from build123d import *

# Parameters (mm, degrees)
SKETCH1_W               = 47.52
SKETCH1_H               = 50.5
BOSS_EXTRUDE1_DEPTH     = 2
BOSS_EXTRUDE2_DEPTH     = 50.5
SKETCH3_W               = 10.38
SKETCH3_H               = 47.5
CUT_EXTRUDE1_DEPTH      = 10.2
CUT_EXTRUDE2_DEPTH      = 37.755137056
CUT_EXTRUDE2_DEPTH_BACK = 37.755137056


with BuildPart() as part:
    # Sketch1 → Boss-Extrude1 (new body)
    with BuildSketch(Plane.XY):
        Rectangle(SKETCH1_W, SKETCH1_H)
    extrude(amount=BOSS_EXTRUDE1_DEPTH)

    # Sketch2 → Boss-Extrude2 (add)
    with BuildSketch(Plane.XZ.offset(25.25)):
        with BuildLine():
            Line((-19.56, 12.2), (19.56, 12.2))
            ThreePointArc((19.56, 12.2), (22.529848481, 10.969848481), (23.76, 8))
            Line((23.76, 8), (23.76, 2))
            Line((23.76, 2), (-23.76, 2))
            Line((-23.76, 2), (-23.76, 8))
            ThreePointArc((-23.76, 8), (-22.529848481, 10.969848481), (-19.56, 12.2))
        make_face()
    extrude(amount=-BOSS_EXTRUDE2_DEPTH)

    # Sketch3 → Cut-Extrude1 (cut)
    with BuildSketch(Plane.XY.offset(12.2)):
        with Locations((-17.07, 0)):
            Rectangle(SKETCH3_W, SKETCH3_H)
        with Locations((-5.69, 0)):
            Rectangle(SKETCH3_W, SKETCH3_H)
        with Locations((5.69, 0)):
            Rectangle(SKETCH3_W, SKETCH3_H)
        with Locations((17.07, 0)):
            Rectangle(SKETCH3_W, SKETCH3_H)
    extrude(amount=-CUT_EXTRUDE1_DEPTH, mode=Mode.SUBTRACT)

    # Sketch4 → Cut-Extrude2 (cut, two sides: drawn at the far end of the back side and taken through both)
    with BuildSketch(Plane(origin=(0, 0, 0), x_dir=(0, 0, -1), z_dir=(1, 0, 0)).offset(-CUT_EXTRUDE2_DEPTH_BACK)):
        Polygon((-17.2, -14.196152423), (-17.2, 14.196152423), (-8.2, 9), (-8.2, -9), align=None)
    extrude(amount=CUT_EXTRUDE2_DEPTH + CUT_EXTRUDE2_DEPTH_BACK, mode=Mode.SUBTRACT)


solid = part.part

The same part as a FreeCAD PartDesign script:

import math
import FreeCAD as App
import Part
import Sketcher
from FreeCAD import Vector
Q = App.Units.Quantity


def add_polygon(sketch, points):
    """Adds a closed chain of lines whose ends are joined by coincident constraints."""
    first, n = sketch.GeometryCount, len(points)
    for a, b in zip(points, points[1:] + points[:1]):
        sketch.addGeometry(Part.LineSegment(App.Vector(*a, 0), App.Vector(*b, 0)), False)
    for i in range(n):
        sketch.addConstraint(Sketcher.Constraint("Coincident", first + i, 2, first + (i + 1) % n, 1))

doc = App.newDocument("Part")
body = doc.addObject("PartDesign::Body", "Body")

# Sketch on XY plane
sketch1 = body.newObject("Sketcher::SketchObject", "Sketch")
sketch1.AttachmentSupport = (doc.getObject("XY_Plane"), [""])
sketch1.MapMode = "FlatFace"
add_polygon(sketch1, [(-24, 25), (-24, -25), (24, -25), (24, 25)])  # lines 0-3
sketch1.addConstraint(Sketcher.Constraint("Vertical", 0))
sketch1.addConstraint(Sketcher.Constraint("Horizontal", 1))
sketch1.addConstraint(Sketcher.Constraint("Vertical", 2))
sketch1.addConstraint(Sketcher.Constraint("Horizontal", 3))
sketch1.addConstraint(Sketcher.Constraint("Symmetric", 0, 2, 2, 2, -1, 1))
sketch1.addConstraint(Sketcher.Constraint("DistanceY", 0, 2, 0, 1, 50.5))
sketch1.addConstraint(Sketcher.Constraint("DistanceX", 1, 1, 1, 2, 47.52))
pad1 = body.newObject("PartDesign::Pad", "Pad")
pad1.Profile = sketch1
pad1.Length = 2

# Sketch on XZ plane
sketch2 = body.newObject("Sketcher::SketchObject", "Sketch001")
sketch2.AttachmentSupport = (doc.getObject("XZ_Plane"), [""])
sketch2.MapMode = "FlatFace"
sketch2.AttachmentOffset = App.Placement(Vector(0, 0, 25.25), App.Rotation())
sketch2.addGeometry(Part.LineSegment(Vector(19.6, 12.2, 0), Vector(-19.6, 12.2, 0)), False)
sketch2.addGeometry(Part.ArcOfCircle(Part.Circle(Vector(-19.6, 8, 0), Vector(0, 0, 1), 4.2), math.radians(90), math.radians(180)), False)
sketch2.addGeometry(Part.LineSegment(Vector(-23.8, 8, 0), Vector(-23.8, 2, 0)), False)
sketch2.addGeometry(Part.LineSegment(Vector(-23.8, 2, 0), Vector(23.8, 2, 0)), False)
sketch2.addGeometry(Part.LineSegment(Vector(23.8, 2, 0), Vector(23.8, 8, 0)), False)
sketch2.addGeometry(Part.ArcOfCircle(Part.Circle(Vector(19.6, 8, 0), Vector(0, 0, 1), 4.2), math.radians(0), math.radians(90)), False)
sketch2.addConstraint(Sketcher.Constraint("Tangent", 0, 2, 1, 1))
sketch2.addConstraint(Sketcher.Constraint("Tangent", 1, 2, 2, 1))
sketch2.addConstraint(Sketcher.Constraint("Coincident", 2, 2, 3, 1))
sketch2.addConstraint(Sketcher.Constraint("Coincident", 3, 2, 4, 1))
sketch2.addConstraint(Sketcher.Constraint("Tangent", 4, 2, 5, 1))
sketch2.addConstraint(Sketcher.Constraint("Tangent", 5, 2, 0, 1))
sketch2.addConstraint(Sketcher.Constraint("Horizontal", 0))
sketch2.addConstraint(Sketcher.Constraint("Vertical", 2))
sketch2.addConstraint(Sketcher.Constraint("Horizontal", 3))
sketch2.addConstraint(Sketcher.Constraint("Vertical", 4))
sketch2.addConstraint(Sketcher.Constraint("Equal", 1, 5))
sketch2.addConstraint(Sketcher.Constraint("Radius", 1, 4.2))
sketch2.addConstraint(Sketcher.Constraint("DistanceY", 2, 2, 2, 1, 6.0))
sketch2.addConstraint(Sketcher.Constraint("DistanceY", -1, 1, 1, 3, 8.0))
sketch2.addConstraint(Sketcher.Constraint("DistanceX", 0, 2, 0, 1, 39.12))
sketch2.addConstraint(Sketcher.Constraint("DistanceX", 1, 3, -1, 1, 19.56))
pad2 = body.newObject("PartDesign::Pad", "Pad001")
pad2.Profile = sketch2
pad2.Length = 50.5
pad2.Reversed = True

# Sketch on XY plane
sketch3 = body.newObject("Sketcher::SketchObject", "Sketch002")
sketch3.AttachmentSupport = (doc.getObject("XY_Plane"), [""])
sketch3.MapMode = "FlatFace"
sketch3.AttachmentOffset = App.Placement(Vector(0, 0, 12.2), App.Rotation())
add_polygon(sketch3, [(-22, 24), (-22, -24), (-12, -24), (-12, 24)])  # lines 0-3
add_polygon(sketch3, [(-11, 24), (-11, -24), (0, -24), (0, 24)])  # lines 4-7
add_polygon(sketch3, [(0, 24), (0, -24), (11, -24), (11, 24)])  # lines 8-11
add_polygon(sketch3, [(12, 24), (12, -24), (22, -24), (22, 24)])  # lines 12-15
sketch3.addConstraint(Sketcher.Constraint("Vertical", 0))
sketch3.addConstraint(Sketcher.Constraint("Horizontal", 1))
sketch3.addConstraint(Sketcher.Constraint("Vertical", 2))
sketch3.addConstraint(Sketcher.Constraint("Horizontal", 3))
sketch3.addConstraint(Sketcher.Constraint("Vertical", 4))
sketch3.addConstraint(Sketcher.Constraint("Horizontal", 5))
sketch3.addConstraint(Sketcher.Constraint("Vertical", 6))
sketch3.addConstraint(Sketcher.Constraint("Horizontal", 7))
sketch3.addConstraint(Sketcher.Constraint("Vertical", 8))
sketch3.addConstraint(Sketcher.Constraint("Horizontal", 9))
sketch3.addConstraint(Sketcher.Constraint("Vertical", 10))
sketch3.addConstraint(Sketcher.Constraint("Horizontal", 11))
sketch3.addConstraint(Sketcher.Constraint("Vertical", 12))
sketch3.addConstraint(Sketcher.Constraint("Horizontal", 13))
sketch3.addConstraint(Sketcher.Constraint("Vertical", 14))
sketch3.addConstraint(Sketcher.Constraint("Horizontal", 15))
sketch3.addConstraint(Sketcher.Constraint("Symmetric", 6, 2, 8, 2, -1, 1))
sketch3.addConstraint(Sketcher.Constraint("Symmetric", 4, 2, 10, 2, -1, 1))
sketch3.addConstraint(Sketcher.Constraint("Symmetric", 2, 2, 12, 2, -1, 1))
sketch3.addConstraint(Sketcher.Constraint("Symmetric", 0, 2, 14, 2, -1, 1))
sketch3.addConstraint(Sketcher.Constraint("Horizontal", 1, 2, 4, 2))
sketch3.addConstraint(Sketcher.Constraint("Horizontal", 3, 2, 6, 2))
sketch3.addConstraint(Sketcher.Constraint("Horizontal", 5, 2, 8, 2))
sketch3.addConstraint(Sketcher.Constraint("Equal", 3, 5))
sketch3.addConstraint(Sketcher.Constraint("DistanceY", 0, 2, 0, 1, 47.5))
sketch3.addConstraint(Sketcher.Constraint("DistanceX", 1, 2, 4, 2, 1.0))
sketch3.addConstraint(Sketcher.Constraint("DistanceX", 5, 2, 8, 2, 1.0))
sketch3.addConstraint(Sketcher.Constraint("DistanceX", 1, 1, 1, 2, 10.38))
pocket1 = body.newObject("PartDesign::Pocket", "Pocket")
pocket1.Profile = sketch3
pocket1.Length = 10.2

# Sketch on YZ plane
sketch4 = body.newObject("Sketcher::SketchObject", "Sketch003")
sketch4.AttachmentSupport = (doc.getObject("YZ_Plane"), [""])
sketch4.MapMode = "FlatFace"
add_polygon(sketch4, [(14, 17), (-14, 17), (-9, 8), (9, 8)])  # lines 0-3
sketch4.addConstraint(Sketcher.Constraint("Horizontal", 0))
sketch4.addConstraint(Sketcher.Constraint("Horizontal", 2))
sketch4.addConstraint(Sketcher.Constraint("Equal", 1, 3))
sketch4.addConstraint(Sketcher.Constraint("DistanceX", 2, 1, 2, 2, 18.0))
sketch4.addConstraint(Sketcher.Constraint("Angle", 1, Q("-60 deg")))
sketch4.addConstraint(Sketcher.Constraint("DistanceX", 1, 2, -1, 1, 9.0))
sketch4.addConstraint(Sketcher.Constraint("DistanceY", 1, 2, 0, 2, 9.0))
sketch4.addConstraint(Sketcher.Constraint("DistanceY", -1, 1, 0, 2, 17.2))
pocket2 = body.newObject("PartDesign::Pocket", "Pocket001")
pocket2.Profile = sketch4
pocket2.Type = "ThroughAll"
pocket2.Midplane = True

doc.recompute()
